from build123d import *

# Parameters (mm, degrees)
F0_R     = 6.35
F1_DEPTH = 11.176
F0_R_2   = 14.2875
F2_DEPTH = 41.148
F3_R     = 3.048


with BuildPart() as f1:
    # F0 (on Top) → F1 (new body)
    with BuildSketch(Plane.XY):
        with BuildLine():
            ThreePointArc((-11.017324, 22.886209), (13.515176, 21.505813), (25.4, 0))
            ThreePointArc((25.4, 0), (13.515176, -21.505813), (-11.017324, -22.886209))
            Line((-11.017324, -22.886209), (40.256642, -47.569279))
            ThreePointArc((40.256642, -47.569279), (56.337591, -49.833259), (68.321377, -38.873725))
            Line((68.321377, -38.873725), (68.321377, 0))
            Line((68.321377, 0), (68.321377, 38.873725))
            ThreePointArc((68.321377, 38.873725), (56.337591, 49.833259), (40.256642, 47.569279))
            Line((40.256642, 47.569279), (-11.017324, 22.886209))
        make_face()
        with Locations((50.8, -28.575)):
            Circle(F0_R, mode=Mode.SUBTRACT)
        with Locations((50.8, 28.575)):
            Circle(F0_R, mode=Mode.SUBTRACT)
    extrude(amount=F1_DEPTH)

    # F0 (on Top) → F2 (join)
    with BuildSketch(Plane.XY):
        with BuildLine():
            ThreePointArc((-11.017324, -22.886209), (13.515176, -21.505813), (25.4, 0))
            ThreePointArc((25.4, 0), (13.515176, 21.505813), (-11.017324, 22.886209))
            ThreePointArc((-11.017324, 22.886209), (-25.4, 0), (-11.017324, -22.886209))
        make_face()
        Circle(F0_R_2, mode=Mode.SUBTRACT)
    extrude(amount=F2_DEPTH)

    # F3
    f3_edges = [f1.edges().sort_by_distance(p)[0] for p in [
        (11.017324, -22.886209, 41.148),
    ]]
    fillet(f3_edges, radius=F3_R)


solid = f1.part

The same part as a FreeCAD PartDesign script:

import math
import FreeCAD as App
import Part
import Sketcher

V = App.Vector
Q = App.Units.Quantity


def edges_at(feature, points):
    """Names of the edges that pass closest to the given points."""
    edges = feature.Shape.Edges
    near = lambda p: min(range(len(edges)), key=lambda i: edges[i].distToShape(Part.Vertex(*p))[0])
    return sorted({f"Edge{near(p) + 1}" for p in points})

doc = App.newDocument("Part")
body = doc.addObject("PartDesign::Body", "Body")

# Sketch on XY plane
sketch1 = doc.addObject("Sketcher::SketchObject", "Sketch")
body.addObject(sketch1)
sketch1.AttachmentSupport = (doc.XY_Plane, [""])
sketch1.MapMode = "FlatFace"
sketch1.addGeometry(Part.ArcOfCircle(Part.Circle(V(0, 0, 0), V(0, 0, 1), 25), math.radians(0), math.radians(116)), False)
sketch1.addGeometry(Part.ArcOfCircle(Part.Circle(V(0, 0, 0), V(0, 0, 1), 25), math.radians(-116), math.radians(0)), False)
sketch1.addGeometry(Part.LineSegment(V(-11, -23, 0), V(40, -48, 0)), False)
sketch1.addGeometry(Part.ArcOfCircle(Part.Circle(V(51, -32, 0), V(0, 0, 1), 19), math.radians(-123), math.radians(-22)), False)
sketch1.addGeometry(Part.LineSegment(V(68, -39, 0), V(68, 39, 0)), False)
sketch1.addGeometry(Part.ArcOfCircle(Part.Circle(V(51, 32, 0), V(0, 0, 1), 19), math.radians(22), math.radians(123)), False)
sketch1.addGeometry(Part.LineSegment(V(40, 48, 0), V(-11, 23, 0)), False)
sketch1.addGeometry(Part.Circle(V(51, -29, 0), V(0, 0, 1), 6), False)
sketch1.addGeometry(Part.Circle(V(51, 29, 0), V(0, 0, 1), 6), False)
sketch1.addConstraint(Sketcher.Constraint("Tangent", 0, 1, 1, 2))
sketch1.addConstraint(Sketcher.Constraint("Tangent", 1, 1, 2, 1))
sketch1.addConstraint(Sketcher.Constraint("Coincident", 2, 2, 3, 1))
sketch1.addConstraint(Sketcher.Constraint("Coincident", 3, 2, 4, 1))
sketch1.addConstraint(Sketcher.Constraint("Coincident", 4, 2, 5, 1))
sketch1.addConstraint(Sketcher.Constraint("Coincident", 5, 2, 6, 1))
sketch1.addConstraint(Sketcher.Constraint("Tangent", 6, 2, 0, 2))
sketch1.addConstraint(Sketcher.Constraint("Vertical", 4))
sketch1.addConstraint(Sketcher.Constraint("Coincident", 0, 3, -1, 1))
sketch1.addConstraint(Sketcher.Constraint("Equal", 0, 1))
sketch1.addConstraint(Sketcher.Constraint("Equal", 3, 5))
sketch1.addConstraint(Sketcher.Constraint("Equal", 7, 8))
sketch1.addConstraint(Sketcher.Constraint("Symmetric", 3, 3, 5, 3, -1))
sketch1.addConstraint(Sketcher.Constraint("Symmetric", 7, 3, 8, 3, -1))
sketch1.addConstraint(Sketcher.Constraint("PointOnObject", 0, 1, -1))
sketch1.addConstraint(Sketcher.Constraint("Vertical", 2, 2, 5, 2))
sketch1.addConstraint(Sketcher.Constraint("Radius", 0, Q("1 in")))
sketch1.addConstraint(Sketcher.Constraint("Diameter", 7, Q("0.5 in")))
sketch1.addConstraint(Sketcher.Constraint("Radius", 3, Q("0.75 in")))
sketch1.addConstraint(Sketcher.Constraint("DistanceX", -1, 1, 7, 3, Q("2 in")))
sketch1.addConstraint(Sketcher.Constraint("DistanceY", 7, 3, 8, 3, Q("2.25 in")))
sketch1.addConstraint(Sketcher.Constraint("DistanceY", 4, 1, 4, 2, 77.74745))
sketch1.addConstraint(Sketcher.Constraint("Distance", 2, 56.90583))
sketch1.addConstraint(Sketcher.Constraint("DistanceX", -1, 1, 3, 3, 50.699579))
sketch1.addConstraint(Sketcher.Constraint("DistanceY", 1, 1, -1, 1, 22.886209))
pad1 = doc.addObject("PartDesign::Pad", "Pad")
body.addObject(pad1)
pad1.Profile = sketch1
pad1.Length = Q("0.44 in")

# Sketch on XY plane
sketch2 = doc.addObject("Sketcher::SketchObject", "Sketch001")
body.addObject(sketch2)
sketch2.AttachmentSupport = (doc.XY_Plane, [""])
sketch2.MapMode = "FlatFace"
sketch2.addGeometry(Part.ArcOfCircle(Part.Circle(V(0, 0, 0), V(0, 0, 1), 25), math.radians(-116), math.radians(0)), False)
sketch2.addGeometry(Part.ArcOfCircle(Part.Circle(V(0, 0, 0), V(0, 0, 1), 25), math.radians(0), math.radians(116)), False)
sketch2.addGeometry(Part.ArcOfCircle(Part.Circle(V(0, 0, 0), V(0, 0, 1), 25), math.radians(116), math.radians(244)), False)
sketch2.addGeometry(Part.Circle(V(0, 0, 0), V(0, 0, 1), 14), False)
sketch2.addConstraint(Sketcher.Constraint("Tangent", 0, 2, 1, 1))
sketch2.addConstraint(Sketcher.Constraint("Tangent", 1, 2, 2, 1))
sketch2.addConstraint(Sketcher.Constraint("Tangent", 2, 2, 0, 1))
sketch2.addConstraint(Sketcher.Constraint("Coincident", 0, 3, -1, 1))
sketch2.addConstraint(Sketcher.Constraint("Coincident", 3, 3, -1, 1))
sketch2.addConstraint(Sketcher.Constraint("PointOnObject", 0, 2, -1))
sketch2.addConstraint(Sketcher.Constraint("Vertical", 1, 2, 2, 2))
sketch2.addConstraint(Sketcher.Constraint("Radius", 0, Q("1 in")))
sketch2.addConstraint(Sketcher.Constraint("Diameter", 3, Q("1.125 in")))
sketch2.addConstraint(Sketcher.Constraint("DistanceY", -1, 1, 1, 2, 22.886209))
pad2 = doc.addObject("PartDesign::Pad", "Pad001")
body.addObject(pad2)
pad2.Profile = sketch2
pad2.Length = Q("1.62 in")
doc.recompute()

fillet = doc.addObject("PartDesign::Fillet", "Fillet")
body.addObject(fillet)
fillet.Base = (pad2, edges_at(pad2, [(13.515, -21.506, 41.148)]))
fillet.Radius = Q("0.12 in")

doc.recompute()
